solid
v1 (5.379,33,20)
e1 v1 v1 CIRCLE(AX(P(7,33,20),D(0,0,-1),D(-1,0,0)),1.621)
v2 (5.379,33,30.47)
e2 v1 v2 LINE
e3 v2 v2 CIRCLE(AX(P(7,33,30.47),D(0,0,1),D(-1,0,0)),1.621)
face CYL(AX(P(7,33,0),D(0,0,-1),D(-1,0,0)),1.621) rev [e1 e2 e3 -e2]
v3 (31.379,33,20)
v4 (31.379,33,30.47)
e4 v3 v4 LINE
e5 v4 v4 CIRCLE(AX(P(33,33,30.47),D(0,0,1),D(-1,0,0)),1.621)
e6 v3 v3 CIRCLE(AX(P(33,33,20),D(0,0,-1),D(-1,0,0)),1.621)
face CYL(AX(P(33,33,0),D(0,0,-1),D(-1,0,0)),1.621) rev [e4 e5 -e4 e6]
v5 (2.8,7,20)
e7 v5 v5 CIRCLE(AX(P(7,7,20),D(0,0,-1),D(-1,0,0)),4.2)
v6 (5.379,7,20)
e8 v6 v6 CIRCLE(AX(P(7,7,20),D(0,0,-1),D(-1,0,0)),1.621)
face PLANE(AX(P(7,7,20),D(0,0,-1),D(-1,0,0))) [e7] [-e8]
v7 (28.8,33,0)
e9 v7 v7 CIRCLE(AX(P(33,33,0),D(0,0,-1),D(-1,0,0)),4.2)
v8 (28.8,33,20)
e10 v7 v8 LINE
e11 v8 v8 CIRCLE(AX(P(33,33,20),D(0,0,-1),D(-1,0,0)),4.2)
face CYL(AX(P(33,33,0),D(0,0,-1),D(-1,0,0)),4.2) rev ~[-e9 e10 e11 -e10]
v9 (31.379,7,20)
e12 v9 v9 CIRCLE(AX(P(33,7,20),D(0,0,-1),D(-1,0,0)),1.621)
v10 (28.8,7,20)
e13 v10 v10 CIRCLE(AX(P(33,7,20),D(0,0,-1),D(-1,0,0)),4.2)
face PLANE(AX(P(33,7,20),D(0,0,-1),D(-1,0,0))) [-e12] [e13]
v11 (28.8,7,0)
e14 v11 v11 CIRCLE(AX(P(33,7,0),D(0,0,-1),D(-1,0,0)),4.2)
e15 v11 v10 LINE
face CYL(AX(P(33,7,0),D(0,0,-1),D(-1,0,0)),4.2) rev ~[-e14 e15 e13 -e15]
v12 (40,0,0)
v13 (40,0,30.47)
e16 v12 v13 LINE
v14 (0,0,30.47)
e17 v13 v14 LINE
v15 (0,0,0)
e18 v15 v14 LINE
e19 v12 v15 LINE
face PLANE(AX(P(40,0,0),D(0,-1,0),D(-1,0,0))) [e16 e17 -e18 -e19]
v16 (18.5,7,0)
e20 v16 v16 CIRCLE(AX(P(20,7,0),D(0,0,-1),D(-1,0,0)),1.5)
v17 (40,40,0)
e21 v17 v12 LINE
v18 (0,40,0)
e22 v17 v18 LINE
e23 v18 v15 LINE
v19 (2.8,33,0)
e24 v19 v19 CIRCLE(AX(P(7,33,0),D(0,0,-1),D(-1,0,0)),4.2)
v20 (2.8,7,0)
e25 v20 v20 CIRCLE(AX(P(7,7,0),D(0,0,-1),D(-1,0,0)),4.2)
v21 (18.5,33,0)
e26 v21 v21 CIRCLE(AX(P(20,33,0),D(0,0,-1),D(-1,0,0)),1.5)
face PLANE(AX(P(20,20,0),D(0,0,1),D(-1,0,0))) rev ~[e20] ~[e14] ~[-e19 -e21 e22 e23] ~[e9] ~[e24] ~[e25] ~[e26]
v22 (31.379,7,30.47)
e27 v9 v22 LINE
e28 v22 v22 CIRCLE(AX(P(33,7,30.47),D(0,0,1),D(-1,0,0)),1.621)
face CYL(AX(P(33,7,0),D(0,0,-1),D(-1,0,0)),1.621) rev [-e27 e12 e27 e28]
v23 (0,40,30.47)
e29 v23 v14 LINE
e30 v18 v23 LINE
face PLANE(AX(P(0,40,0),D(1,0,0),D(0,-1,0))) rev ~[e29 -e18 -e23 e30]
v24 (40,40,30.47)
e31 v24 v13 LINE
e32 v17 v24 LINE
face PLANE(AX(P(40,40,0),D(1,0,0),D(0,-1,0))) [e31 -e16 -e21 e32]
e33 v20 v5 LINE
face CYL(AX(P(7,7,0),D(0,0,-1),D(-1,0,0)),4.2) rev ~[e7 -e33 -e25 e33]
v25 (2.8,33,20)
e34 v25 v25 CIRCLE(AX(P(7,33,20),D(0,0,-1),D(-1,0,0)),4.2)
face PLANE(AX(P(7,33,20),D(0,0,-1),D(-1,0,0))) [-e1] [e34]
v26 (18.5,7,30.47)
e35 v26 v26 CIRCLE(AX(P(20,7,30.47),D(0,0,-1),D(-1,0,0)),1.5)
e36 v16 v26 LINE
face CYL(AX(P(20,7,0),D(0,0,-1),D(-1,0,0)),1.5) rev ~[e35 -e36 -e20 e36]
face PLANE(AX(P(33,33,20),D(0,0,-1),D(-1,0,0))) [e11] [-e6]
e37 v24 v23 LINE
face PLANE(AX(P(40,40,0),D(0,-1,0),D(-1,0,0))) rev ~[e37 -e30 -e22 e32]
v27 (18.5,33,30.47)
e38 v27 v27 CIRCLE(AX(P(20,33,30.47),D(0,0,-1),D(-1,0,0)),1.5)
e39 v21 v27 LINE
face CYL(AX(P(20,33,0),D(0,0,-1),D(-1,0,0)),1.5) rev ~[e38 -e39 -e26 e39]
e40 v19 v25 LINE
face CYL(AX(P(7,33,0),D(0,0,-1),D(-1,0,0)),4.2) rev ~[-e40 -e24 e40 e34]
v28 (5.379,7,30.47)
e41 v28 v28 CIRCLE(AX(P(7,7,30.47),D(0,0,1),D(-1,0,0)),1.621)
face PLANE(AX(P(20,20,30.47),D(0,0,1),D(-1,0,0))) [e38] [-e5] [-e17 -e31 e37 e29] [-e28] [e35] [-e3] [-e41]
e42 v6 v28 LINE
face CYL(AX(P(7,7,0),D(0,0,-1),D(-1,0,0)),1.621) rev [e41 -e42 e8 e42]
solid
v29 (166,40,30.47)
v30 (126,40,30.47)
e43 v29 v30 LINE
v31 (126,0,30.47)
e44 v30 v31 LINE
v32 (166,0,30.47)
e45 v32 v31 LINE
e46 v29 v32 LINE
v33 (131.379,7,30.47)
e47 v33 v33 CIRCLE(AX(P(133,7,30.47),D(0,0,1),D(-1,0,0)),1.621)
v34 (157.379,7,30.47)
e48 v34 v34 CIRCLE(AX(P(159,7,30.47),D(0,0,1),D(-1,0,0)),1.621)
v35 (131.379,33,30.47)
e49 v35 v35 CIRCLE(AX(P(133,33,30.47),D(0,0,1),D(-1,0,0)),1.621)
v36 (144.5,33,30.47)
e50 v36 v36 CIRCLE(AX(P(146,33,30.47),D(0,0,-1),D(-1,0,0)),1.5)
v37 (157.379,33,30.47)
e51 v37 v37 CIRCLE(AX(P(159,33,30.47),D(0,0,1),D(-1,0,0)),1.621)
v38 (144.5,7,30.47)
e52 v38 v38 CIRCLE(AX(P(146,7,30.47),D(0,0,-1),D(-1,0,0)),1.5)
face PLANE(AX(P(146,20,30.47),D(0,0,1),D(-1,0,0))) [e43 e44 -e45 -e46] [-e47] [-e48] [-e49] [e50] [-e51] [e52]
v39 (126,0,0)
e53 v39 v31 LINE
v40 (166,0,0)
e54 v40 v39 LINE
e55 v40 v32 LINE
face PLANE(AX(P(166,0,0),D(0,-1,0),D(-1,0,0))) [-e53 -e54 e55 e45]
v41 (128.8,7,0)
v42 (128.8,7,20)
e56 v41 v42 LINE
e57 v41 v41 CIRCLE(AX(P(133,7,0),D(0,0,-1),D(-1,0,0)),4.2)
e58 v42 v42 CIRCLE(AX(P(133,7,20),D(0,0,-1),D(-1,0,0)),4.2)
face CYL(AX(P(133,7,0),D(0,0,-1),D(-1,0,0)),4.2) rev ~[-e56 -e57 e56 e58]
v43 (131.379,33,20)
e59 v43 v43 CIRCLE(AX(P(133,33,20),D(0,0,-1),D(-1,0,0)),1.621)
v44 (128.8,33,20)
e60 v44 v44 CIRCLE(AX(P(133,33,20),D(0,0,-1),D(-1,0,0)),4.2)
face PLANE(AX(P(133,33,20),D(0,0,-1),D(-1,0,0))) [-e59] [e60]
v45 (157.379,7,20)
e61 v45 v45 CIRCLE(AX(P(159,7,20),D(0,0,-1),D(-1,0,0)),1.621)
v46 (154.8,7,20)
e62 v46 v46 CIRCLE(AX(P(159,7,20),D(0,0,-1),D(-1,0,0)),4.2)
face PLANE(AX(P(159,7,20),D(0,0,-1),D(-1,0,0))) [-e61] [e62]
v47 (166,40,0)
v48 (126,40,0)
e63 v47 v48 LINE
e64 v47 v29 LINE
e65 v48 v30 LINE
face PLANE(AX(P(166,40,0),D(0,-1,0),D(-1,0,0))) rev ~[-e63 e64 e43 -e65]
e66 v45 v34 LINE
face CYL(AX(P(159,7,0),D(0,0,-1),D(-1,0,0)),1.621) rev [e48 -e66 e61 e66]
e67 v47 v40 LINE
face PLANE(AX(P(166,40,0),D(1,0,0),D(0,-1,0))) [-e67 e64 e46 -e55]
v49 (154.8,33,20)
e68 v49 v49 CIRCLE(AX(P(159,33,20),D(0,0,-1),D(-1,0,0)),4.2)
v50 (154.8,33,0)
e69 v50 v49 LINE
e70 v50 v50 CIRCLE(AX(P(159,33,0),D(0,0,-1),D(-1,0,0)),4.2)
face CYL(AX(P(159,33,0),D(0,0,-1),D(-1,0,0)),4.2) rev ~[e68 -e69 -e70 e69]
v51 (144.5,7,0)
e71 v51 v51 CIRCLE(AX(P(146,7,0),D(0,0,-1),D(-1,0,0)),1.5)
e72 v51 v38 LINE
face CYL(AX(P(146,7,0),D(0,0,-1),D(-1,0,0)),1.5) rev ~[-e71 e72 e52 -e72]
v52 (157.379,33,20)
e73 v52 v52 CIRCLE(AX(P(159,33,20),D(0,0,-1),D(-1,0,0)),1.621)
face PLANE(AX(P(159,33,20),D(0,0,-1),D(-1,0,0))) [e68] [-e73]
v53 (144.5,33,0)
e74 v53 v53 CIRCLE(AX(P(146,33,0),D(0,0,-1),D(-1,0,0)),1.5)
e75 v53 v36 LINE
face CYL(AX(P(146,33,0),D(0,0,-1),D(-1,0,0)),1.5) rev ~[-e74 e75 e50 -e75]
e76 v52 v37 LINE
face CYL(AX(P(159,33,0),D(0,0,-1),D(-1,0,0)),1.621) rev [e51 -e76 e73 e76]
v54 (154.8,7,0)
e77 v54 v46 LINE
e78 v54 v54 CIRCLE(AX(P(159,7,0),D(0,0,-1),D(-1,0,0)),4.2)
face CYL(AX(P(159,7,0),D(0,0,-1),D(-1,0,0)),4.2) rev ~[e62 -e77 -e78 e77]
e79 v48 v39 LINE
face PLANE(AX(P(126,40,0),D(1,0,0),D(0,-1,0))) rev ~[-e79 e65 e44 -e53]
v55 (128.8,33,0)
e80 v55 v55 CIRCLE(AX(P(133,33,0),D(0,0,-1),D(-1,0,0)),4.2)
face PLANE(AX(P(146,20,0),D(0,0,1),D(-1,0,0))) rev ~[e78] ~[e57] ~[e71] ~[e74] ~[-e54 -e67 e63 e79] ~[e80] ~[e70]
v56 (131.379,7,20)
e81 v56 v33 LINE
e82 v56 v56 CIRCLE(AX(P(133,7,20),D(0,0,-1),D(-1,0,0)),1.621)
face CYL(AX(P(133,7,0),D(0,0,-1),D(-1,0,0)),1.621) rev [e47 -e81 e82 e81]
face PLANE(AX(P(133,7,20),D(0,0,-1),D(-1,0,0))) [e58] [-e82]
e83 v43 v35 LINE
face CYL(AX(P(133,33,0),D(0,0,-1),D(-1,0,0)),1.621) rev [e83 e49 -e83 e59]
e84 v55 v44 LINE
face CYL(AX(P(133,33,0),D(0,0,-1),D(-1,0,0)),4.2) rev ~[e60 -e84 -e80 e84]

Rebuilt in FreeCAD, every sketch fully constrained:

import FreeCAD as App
import Part
import Sketcher


def add_polygon(sketch, points):
    """Adds a closed chain of lines whose ends are joined by coincident constraints."""
    first, n = sketch.GeometryCount, len(points)
    for a, b in zip(points, points[1:] + points[:1]):
        sketch.addGeometry(Part.LineSegment(App.Vector(*a, 0), App.Vector(*b, 0)), False)
    for i in range(n):
        sketch.addConstraint(Sketcher.Constraint("Coincident", first + i, 2, first + (i + 1) % n, 1))

doc = App.newDocument("Part")
params = doc.addObject("Spreadsheet::Sheet", "Params")
for row, (alias, value) in enumerate([
    ("sketch1_width", "40 mm"),
    ("pad1_length", "30.47 mm"),
    ("sketch2_width", "40 mm"),
    ("pad2_length", "30.47 mm"),
    ("sketch3_diameter", "8.4 mm"),
    ("pad3_length", "20 mm"),
    ("sketch4_diameter", "3 mm"),
    ("pad4_length", "174.448612 mm"),
], start=1):
    params.set(f"A{row}", alias)
    params.set(f"B{row}", "=" + value)
    params.setAlias(f"B{row}", alias)

body = doc.addObject("PartDesign::Body", "Body")

# Sketch on XY plane
sketch1 = body.newObject("Sketcher::SketchObject", "Sketch")
sketch1.AttachmentSupport = (doc.getObject("XY_Plane"), [""])
sketch1.MapMode = "FlatFace"
add_polygon(sketch1, [(40, 0), (40, 40), (0, 40), (0, 0)])  # lines 0-3
sketch1.addGeometry(Part.Circle(App.Vector(33, 33, 0), App.Vector(0, 0, 1), 1.6), False)  # 4
sketch1.addGeometry(Part.Circle(App.Vector(7, 33, 0), App.Vector(0, 0, 1), 1.6), False)  # 5
sketch1.addGeometry(Part.Circle(App.Vector(33, 7, 0), App.Vector(0, 0, 1), 1.6), False)  # 6
sketch1.addGeometry(Part.Circle(App.Vector(7, 7, 0), App.Vector(0, 0, 1), 1.6), False)  # 7
sketch1.addConstraint([
    Sketcher.Constraint("Vertical", 0),
    Sketcher.Constraint("Horizontal", 1),
    Sketcher.Constraint("Vertical", 2),
    Sketcher.Constraint("Horizontal", 3),
    Sketcher.Constraint("Coincident", 2, 2, -1, 1),
    Sketcher.Constraint("Equal", 4, 5),
    Sketcher.Constraint("Equal", 5, 6),
    Sketcher.Constraint("Equal", 6, 7),
    Sketcher.Constraint("Horizontal", 4, 3, 5, 3),
    Sketcher.Constraint("Horizontal", 6, 3, 7, 3),
    Sketcher.Constraint("Vertical", 4, 3, 6, 3),
    Sketcher.Constraint("Vertical", 5, 3, 7, 3),
    Sketcher.Constraint("Equal", 3, 0),
    Sketcher.Constraint("DistanceX", 1, 2, 1, 1, 40.0),
    Sketcher.Constraint("Diameter", 4, 3.242),
    Sketcher.Constraint("DistanceX", -1, 1, 4, 3, 33.0),
    Sketcher.Constraint("DistanceY", -1, 1, 4, 3, 33.0),
    Sketcher.Constraint("DistanceX", -1, 1, 5, 3, 7.0),
    Sketcher.Constraint("DistanceY", -1, 1, 6, 3, 7.0),
])
sketch1.setExpression("Constraints[17]", "Params.sketch1_width")
pad1 = body.newObject("PartDesign::Pad", "Pad")
pad1.Profile = sketch1
pad1.setExpression("Length", "Params.pad1_length")
body2 = doc.addObject("PartDesign::Body", "Body001")

# Sketch on XY plane
sketch2 = body2.newObject("Sketcher::SketchObject", "Sketch001")
sketch2.AttachmentSupport = (doc.getObject("XY_Plane001"), [""])
sketch2.MapMode = "FlatFace"
add_polygon(sketch2, [(166, 0), (166, 40), (126, 40), (126, 0)])  # lines 0-3
sketch2.addGeometry(Part.Circle(App.Vector(159, 33, 0), App.Vector(0, 0, 1), 1.6), False)  # 4
sketch2.addGeometry(Part.Circle(App.Vector(133, 33, 0), App.Vector(0, 0, 1), 1.6), False)  # 5
sketch2.addGeometry(Part.Circle(App.Vector(159, 7, 0), App.Vector(0, 0, 1), 1.6), False)  # 6
sketch2.addGeometry(Part.Circle(App.Vector(133, 7, 0), App.Vector(0, 0, 1), 1.6), False)  # 7
sketch2.addConstraint([
    Sketcher.Constraint("Vertical", 0),
    Sketcher.Constraint("Horizontal", 1),
    Sketcher.Constraint("Vertical", 2),
    Sketcher.Constraint("Horizontal", 3),
    Sketcher.Constraint("Equal", 4, 5),
    Sketcher.Constraint("Equal", 5, 6),
    Sketcher.Constraint("Equal", 6, 7),
    Sketcher.Constraint("PointOnObject", 2, 2, -1),
    Sketcher.Constraint("Horizontal", 4, 3, 5, 3),
    Sketcher.Constraint("Horizontal", 6, 3, 7, 3),
    Sketcher.Constraint("Vertical", 4, 3, 6, 3),
    Sketcher.Constraint("Vertical", 5, 3, 7, 3),
    Sketcher.Constraint("Equal", 3, 0),
    Sketcher.Constraint("DistanceX", 1, 2, 1, 1, 40.0),
    Sketcher.Constraint("Diameter", 4, 3.242),
    Sketcher.Constraint("DistanceX", -1, 1, 4, 3, 159.0),
    Sketcher.Constraint("DistanceY", -1, 1, 4, 3, 33.0),
    Sketcher.Constraint("DistanceX", -1, 1, 5, 3, 133.0),
    Sketcher.Constraint("DistanceY", -1, 1, 6, 3, 7.0),
    Sketcher.Constraint("DistanceX", -1, 1, 0, 2, 166.0),
])
sketch2.setExpression("Constraints[17]", "Params.sketch2_width")
pad2 = body2.newObject("PartDesign::Pad", "Pad001")
pad2.Profile = sketch2
pad2.setExpression("Length", "Params.pad2_length")
body3 = doc.addObject("PartDesign::Body", "Body002")
body3.AllowCompound = True

# Sketch on XY plane
sketch3 = body3.newObject("Sketcher::SketchObject", "Sketch002")
sketch3.AttachmentSupport = (doc.getObject("XY_Plane002"), [""])
sketch3.MapMode = "FlatFace"
sketch3.addGeometry([
    Part.Circle(App.Vector(7, 7, 0), App.Vector(0, 0, 1), 4.2),  # 0
    Part.Circle(App.Vector(33, 7, 0), App.Vector(0, 0, 1), 4.2),  # 1
    Part.Circle(App.Vector(7, 33, 0), App.Vector(0, 0, 1), 4.2),  # 2
    Part.Circle(App.Vector(33, 33, 0), App.Vector(0, 0, 1), 4.2),  # 3
    Part.Circle(App.Vector(133, 7, 0), App.Vector(0, 0, 1), 4.2),  # 4
    Part.Circle(App.Vector(133, 33, 0), App.Vector(0, 0, 1), 4.2),  # 5
    Part.Circle(App.Vector(159, 33, 0), App.Vector(0, 0, 1), 4.2),  # 6
    Part.Circle(App.Vector(159, 7, 0), App.Vector(0, 0, 1), 4.2),  # 7
], False)
sketch3.addConstraint([
    Sketcher.Constraint("Equal", 0, 1),
    Sketcher.Constraint("Equal", 1, 2),
    Sketcher.Constraint("Equal", 2, 3),
    Sketcher.Constraint("Equal", 3, 4),
    Sketcher.Constraint("Equal", 4, 5),
    Sketcher.Constraint("Equal", 5, 6),
    Sketcher.Constraint("Equal", 6, 7),
    Sketcher.Constraint("Horizontal", 0, 3, 1, 3),
    Sketcher.Constraint("Horizontal", 2, 3, 3, 3),
    Sketcher.Constraint("Horizontal", 1, 3, 4, 3),
    Sketcher.Constraint("Horizontal", 3, 3, 5, 3),
    Sketcher.Constraint("Horizontal", 5, 3, 6, 3),
    Sketcher.Constraint("Horizontal", 4, 3, 7, 3),
    Sketcher.Constraint("Vertical", 0, 3, 2, 3),
    Sketcher.Constraint("Vertical", 1, 3, 3, 3),
    Sketcher.Constraint("Vertical", 4, 3, 5, 3),
    Sketcher.Constraint("Vertical", 6, 3, 7, 3),
    Sketcher.Constraint("Diameter", 0, 8.4),
    Sketcher.Constraint("DistanceX", -1, 1, 0, 3, 7.0),
    Sketcher.Constraint("DistanceY", -1, 1, 0, 3, 7.0),
    Sketcher.Constraint("DistanceX", -1, 1, 1, 3, 33.0),
    Sketcher.Constraint("DistanceY", -1, 1, 2, 3, 33.0),
    Sketcher.Constraint("DistanceX", -1, 1, 4, 3, 133.0),
    Sketcher.Constraint("DistanceX", -1, 1, 6, 3, 159.0),
])
sketch3.setExpression("Constraints[17]", "Params.sketch3_diameter")
pad3 = body3.newObject("PartDesign::Pad", "Pad002")
pad3.Profile = sketch3
pad3.setExpression("Length", "Params.pad3_length")
doc.recompute()

body4 = doc.addObject("PartDesign::Body", "Body003")
body4.BaseFeature = body3
boolean = body.newObject("PartDesign::Boolean", "Boolean")
boolean.Type = "Cut"
boolean.addObjects([body4])
doc.recompute()

boolean2 = body2.newObject("PartDesign::Boolean", "Boolean001")
boolean2.Type = "Cut"
boolean2.addObjects([body3])
body5 = doc.addObject("PartDesign::Body", "Body004")
body5.AllowCompound = True

# Sketch on XY plane
sketch4 = body5.newObject("Sketcher::SketchObject", "Sketch003")
sketch4.AttachmentSupport = (doc.getObject("XY_Plane004"), [""])
sketch4.MapMode = "FlatFace"
sketch4.addGeometry([
    Part.Circle(App.Vector(20, 7, 0), App.Vector(0, 0, 1), 1.5),
    Part.Circle(App.Vector(20, 33, 0), App.Vector(0, 0, 1), 1.5),
    Part.Circle(App.Vector(146, 7, 0), App.Vector(0, 0, 1), 1.5),
    Part.Circle(App.Vector(146, 33, 0), App.Vector(0, 0, 1), 1.5),
], False)
sketch4.addConstraint([
    Sketcher.Constraint("Equal", 0, 1),
    Sketcher.Constraint("Equal", 1, 2),
    Sketcher.Constraint("Equal", 2, 3),
    Sketcher.Constraint("Horizontal", 0, 3, 2, 3),
    Sketcher.Constraint("Horizontal", 1, 3, 3, 3),
    Sketcher.Constraint("Vertical", 0, 3, 1, 3),
    Sketcher.Constraint("Vertical", 2, 3, 3, 3),
    Sketcher.Constraint("Diameter", 0, 3.0),
    Sketcher.Constraint("DistanceX", -1, 1, 0, 3, 20.0),
    Sketcher.Constraint("DistanceY", -1, 1, 0, 3, 7.0),
    Sketcher.Constraint("DistanceY", -1, 1, 1, 3, 33.0),
    Sketcher.Constraint("DistanceX", -1, 1, 2, 3, 146.0),
])
sketch4.setExpression("Constraints[7]", "Params.sketch4_diameter")
pad4 = body5.newObject("PartDesign::Pad", "Pad003")
pad4.Profile = sketch4
pad4.setExpression("Length", "Params.pad4_length")
doc.recompute()

body6 = doc.addObject("PartDesign::Body", "Body005")
body6.BaseFeature = body5
boolean3 = body.newObject("PartDesign::Boolean", "Boolean002")
boolean3.Type = "Cut"
boolean3.addObjects([body6])
doc.recompute()

boolean4 = body2.newObject("PartDesign::Boolean", "Boolean003")
boolean4.Type = "Cut"
boolean4.addObjects([body5])

doc.recompute()
